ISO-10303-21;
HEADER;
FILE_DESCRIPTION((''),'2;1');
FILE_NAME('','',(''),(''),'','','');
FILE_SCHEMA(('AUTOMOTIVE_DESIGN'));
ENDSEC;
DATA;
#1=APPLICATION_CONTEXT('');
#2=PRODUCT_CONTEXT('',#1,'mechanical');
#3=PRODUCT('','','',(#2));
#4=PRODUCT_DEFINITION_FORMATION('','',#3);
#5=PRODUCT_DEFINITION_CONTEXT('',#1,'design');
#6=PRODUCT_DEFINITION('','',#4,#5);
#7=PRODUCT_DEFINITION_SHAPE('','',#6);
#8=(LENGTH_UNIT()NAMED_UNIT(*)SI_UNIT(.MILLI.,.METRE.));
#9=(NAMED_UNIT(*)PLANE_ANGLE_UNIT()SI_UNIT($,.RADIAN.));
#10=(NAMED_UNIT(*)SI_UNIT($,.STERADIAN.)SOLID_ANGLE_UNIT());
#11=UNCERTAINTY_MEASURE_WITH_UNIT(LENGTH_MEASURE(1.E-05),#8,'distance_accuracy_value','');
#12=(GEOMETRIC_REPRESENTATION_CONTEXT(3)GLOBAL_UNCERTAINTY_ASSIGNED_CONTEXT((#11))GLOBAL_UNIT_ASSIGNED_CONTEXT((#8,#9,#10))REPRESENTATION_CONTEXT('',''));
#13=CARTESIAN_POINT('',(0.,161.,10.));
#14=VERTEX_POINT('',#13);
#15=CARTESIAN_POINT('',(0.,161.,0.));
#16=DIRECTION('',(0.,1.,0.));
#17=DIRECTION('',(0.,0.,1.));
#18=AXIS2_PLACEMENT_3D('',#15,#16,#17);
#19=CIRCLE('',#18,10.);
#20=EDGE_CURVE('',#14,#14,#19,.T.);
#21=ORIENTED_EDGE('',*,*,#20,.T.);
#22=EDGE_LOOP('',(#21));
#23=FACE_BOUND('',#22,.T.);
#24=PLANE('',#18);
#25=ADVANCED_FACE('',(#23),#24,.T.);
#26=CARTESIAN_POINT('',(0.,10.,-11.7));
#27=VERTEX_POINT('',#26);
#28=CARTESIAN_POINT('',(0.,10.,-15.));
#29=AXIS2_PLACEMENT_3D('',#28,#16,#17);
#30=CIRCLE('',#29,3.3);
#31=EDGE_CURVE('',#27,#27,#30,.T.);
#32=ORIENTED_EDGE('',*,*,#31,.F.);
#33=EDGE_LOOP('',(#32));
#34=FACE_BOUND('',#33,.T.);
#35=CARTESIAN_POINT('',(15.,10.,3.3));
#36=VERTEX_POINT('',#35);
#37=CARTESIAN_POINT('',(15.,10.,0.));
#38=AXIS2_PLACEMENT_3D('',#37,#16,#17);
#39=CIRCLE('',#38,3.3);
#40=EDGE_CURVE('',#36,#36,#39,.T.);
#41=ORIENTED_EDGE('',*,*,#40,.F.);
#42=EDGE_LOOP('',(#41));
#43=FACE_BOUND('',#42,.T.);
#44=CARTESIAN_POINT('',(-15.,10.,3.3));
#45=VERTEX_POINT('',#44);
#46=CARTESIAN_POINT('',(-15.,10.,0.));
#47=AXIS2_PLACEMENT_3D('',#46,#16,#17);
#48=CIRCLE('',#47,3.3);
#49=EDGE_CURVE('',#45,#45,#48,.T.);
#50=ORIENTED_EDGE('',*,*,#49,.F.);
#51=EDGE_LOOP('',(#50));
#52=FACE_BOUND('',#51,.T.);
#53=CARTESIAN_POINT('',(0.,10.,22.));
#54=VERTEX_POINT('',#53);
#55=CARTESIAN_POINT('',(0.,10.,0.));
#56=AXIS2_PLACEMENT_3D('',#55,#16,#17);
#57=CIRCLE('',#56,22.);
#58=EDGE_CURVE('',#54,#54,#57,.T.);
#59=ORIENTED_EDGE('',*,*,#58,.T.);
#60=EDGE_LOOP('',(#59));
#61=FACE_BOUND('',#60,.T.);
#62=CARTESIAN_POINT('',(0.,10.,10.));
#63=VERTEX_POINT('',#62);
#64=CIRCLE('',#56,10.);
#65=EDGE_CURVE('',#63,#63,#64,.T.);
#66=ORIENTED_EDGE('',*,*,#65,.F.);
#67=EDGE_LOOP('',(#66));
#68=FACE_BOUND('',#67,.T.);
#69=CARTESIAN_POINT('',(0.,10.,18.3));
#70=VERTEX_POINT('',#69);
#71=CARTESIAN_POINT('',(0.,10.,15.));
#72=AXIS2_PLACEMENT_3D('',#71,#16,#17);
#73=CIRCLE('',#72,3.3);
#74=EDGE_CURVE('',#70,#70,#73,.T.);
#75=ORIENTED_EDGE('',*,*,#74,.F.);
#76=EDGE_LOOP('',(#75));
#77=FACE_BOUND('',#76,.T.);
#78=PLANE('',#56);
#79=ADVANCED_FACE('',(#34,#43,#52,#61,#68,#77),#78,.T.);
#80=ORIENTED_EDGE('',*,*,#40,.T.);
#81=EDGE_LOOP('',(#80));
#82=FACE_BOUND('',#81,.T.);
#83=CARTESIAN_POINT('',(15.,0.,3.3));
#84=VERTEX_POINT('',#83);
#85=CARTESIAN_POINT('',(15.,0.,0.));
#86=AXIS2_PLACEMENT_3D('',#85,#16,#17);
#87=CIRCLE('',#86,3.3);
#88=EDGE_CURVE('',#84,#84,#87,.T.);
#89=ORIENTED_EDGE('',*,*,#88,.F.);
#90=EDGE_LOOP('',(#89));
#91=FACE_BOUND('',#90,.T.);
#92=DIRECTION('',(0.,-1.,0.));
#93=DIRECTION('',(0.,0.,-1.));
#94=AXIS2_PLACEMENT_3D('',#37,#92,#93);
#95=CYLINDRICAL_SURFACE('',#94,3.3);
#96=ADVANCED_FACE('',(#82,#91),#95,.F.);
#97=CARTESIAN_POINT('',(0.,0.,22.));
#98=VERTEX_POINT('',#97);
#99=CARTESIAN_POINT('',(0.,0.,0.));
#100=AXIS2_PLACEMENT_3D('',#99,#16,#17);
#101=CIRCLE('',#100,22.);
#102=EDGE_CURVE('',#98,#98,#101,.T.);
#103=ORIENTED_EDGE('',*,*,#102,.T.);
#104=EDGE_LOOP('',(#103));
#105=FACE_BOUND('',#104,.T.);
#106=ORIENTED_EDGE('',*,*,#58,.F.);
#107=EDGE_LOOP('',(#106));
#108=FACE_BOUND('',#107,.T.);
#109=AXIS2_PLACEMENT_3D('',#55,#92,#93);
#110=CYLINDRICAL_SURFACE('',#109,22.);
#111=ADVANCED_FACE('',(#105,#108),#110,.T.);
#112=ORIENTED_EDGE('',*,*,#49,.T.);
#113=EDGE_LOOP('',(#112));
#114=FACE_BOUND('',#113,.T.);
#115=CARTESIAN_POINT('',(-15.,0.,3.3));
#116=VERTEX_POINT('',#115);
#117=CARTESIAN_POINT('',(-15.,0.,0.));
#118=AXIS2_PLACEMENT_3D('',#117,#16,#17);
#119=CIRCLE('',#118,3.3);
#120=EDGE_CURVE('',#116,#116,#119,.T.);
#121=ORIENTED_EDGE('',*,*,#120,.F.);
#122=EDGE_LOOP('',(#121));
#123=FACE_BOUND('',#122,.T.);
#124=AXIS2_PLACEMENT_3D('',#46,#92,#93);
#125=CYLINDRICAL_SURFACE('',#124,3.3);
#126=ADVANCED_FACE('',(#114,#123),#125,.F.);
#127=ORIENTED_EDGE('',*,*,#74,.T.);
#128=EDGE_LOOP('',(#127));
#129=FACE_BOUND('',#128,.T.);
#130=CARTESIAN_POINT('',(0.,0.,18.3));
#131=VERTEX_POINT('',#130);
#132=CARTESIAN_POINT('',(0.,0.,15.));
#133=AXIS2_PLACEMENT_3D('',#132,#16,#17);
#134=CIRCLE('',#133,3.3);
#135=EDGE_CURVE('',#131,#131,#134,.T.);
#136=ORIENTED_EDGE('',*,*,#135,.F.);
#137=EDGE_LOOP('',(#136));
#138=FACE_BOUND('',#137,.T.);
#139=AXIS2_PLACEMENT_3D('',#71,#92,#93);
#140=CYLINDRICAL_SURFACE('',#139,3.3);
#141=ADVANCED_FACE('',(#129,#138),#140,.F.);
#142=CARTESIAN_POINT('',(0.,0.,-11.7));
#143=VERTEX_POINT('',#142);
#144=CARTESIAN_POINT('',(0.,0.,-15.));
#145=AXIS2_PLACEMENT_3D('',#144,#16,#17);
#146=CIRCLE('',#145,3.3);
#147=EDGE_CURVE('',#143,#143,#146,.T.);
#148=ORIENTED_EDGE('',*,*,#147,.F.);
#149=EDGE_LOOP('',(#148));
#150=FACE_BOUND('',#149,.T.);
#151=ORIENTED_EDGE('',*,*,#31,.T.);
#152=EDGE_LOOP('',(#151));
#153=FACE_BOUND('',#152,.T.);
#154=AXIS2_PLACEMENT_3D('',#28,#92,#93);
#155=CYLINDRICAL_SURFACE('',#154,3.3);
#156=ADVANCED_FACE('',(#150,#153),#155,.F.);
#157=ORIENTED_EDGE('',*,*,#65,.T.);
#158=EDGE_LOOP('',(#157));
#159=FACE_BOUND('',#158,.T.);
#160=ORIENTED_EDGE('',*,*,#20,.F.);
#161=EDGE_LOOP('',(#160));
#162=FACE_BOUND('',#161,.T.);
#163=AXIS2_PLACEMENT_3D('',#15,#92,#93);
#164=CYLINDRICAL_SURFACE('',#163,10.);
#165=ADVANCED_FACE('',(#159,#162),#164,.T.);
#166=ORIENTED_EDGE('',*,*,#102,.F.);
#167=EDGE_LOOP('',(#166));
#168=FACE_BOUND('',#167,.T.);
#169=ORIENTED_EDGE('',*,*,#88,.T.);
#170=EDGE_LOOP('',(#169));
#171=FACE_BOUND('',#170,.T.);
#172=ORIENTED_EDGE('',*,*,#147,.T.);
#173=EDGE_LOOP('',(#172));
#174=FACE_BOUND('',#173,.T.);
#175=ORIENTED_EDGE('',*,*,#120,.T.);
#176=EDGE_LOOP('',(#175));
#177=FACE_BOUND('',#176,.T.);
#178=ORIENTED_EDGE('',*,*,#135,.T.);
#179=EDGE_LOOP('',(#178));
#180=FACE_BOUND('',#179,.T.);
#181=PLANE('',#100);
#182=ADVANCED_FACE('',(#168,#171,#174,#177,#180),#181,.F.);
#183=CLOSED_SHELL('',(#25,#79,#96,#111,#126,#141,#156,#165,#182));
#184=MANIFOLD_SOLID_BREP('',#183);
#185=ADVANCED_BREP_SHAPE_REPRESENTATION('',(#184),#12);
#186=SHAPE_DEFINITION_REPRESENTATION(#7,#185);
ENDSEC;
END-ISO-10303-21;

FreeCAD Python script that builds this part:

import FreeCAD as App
import Part
import Sketcher
Q = App.Units.Quantity

doc = App.newDocument("Part")
body = doc.addObject("PartDesign::Body", "Body")

# Sketch on XZ plane
sketch1 = body.newObject("Sketcher::SketchObject", "Sketch")
sketch1.AttachmentSupport = (doc.getObject("XZ_Plane"), [""])
sketch1.MapMode = "FlatFace"
sketch1.addGeometry(Part.Circle(App.Vector(0, 0, 0), App.Vector(0, 0, 1), 10), False)
sketch1.addConstraint([
    Sketcher.Constraint("Coincident", 0, 3, -1, 1),
    Sketcher.Constraint("Diameter", 0, Q("20 mm")),
])
pad1 = body.newObject("PartDesign::Pad", "Pad")
pad1.Profile = sketch1
pad1.Length = 161
pad1.Reversed = True

# Sketch on XZ plane
sketch2 = body.newObject("Sketcher::SketchObject", "Sketch001")
sketch2.AttachmentSupport = (doc.getObject("XZ_Plane"), [""])
sketch2.MapMode = "FlatFace"
sketch2.addGeometry([
    Part.Circle(App.Vector(0, 0, 0), App.Vector(0, 0, 1), 22),  # 0
    Part.Circle(App.Vector(0, -15, 0), App.Vector(0, 0, 1), 3.3),  # 1
    Part.Circle(App.Vector(-15, 0, 0), App.Vector(0, 0, 1), 3.3),  # 2
    Part.Circle(App.Vector(15, 0, 0), App.Vector(0, 0, 1), 3.3),  # 3
    Part.Circle(App.Vector(0, 15, 0), App.Vector(0, 0, 1), 3.3),  # 4
], False)
sketch2.addConstraint([
    Sketcher.Constraint("Coincident", 0, 3, -1, 1),
    Sketcher.Constraint("Equal", 1, 2),
    Sketcher.Constraint("Equal", 2, 3),
    Sketcher.Constraint("Equal", 3, 4),
    Sketcher.Constraint("Symmetric", 2, 3, 3, 3, -1, 1),
    Sketcher.Constraint("Symmetric", 1, 3, 4, 3, -1, 1),
    Sketcher.Constraint("PointOnObject", 1, 3, -2),
    Sketcher.Constraint("PointOnObject", 2, 3, -1),
    Sketcher.Constraint("Diameter", 0, Q("44 mm")),
    Sketcher.Constraint("Diameter", 1, Q("6.6 mm")),
    Sketcher.Constraint("DistanceY", 1, 3, -1, 1, Q("15 mm")),
    Sketcher.Constraint("DistanceX", 2, 3, -1, 1, Q("15 mm")),
])
pad2 = body.newObject("PartDesign::Pad", "Pad001")
pad2.Profile = sketch2
pad2.Length = 10
pad2.Reversed = True

doc.recompute()
